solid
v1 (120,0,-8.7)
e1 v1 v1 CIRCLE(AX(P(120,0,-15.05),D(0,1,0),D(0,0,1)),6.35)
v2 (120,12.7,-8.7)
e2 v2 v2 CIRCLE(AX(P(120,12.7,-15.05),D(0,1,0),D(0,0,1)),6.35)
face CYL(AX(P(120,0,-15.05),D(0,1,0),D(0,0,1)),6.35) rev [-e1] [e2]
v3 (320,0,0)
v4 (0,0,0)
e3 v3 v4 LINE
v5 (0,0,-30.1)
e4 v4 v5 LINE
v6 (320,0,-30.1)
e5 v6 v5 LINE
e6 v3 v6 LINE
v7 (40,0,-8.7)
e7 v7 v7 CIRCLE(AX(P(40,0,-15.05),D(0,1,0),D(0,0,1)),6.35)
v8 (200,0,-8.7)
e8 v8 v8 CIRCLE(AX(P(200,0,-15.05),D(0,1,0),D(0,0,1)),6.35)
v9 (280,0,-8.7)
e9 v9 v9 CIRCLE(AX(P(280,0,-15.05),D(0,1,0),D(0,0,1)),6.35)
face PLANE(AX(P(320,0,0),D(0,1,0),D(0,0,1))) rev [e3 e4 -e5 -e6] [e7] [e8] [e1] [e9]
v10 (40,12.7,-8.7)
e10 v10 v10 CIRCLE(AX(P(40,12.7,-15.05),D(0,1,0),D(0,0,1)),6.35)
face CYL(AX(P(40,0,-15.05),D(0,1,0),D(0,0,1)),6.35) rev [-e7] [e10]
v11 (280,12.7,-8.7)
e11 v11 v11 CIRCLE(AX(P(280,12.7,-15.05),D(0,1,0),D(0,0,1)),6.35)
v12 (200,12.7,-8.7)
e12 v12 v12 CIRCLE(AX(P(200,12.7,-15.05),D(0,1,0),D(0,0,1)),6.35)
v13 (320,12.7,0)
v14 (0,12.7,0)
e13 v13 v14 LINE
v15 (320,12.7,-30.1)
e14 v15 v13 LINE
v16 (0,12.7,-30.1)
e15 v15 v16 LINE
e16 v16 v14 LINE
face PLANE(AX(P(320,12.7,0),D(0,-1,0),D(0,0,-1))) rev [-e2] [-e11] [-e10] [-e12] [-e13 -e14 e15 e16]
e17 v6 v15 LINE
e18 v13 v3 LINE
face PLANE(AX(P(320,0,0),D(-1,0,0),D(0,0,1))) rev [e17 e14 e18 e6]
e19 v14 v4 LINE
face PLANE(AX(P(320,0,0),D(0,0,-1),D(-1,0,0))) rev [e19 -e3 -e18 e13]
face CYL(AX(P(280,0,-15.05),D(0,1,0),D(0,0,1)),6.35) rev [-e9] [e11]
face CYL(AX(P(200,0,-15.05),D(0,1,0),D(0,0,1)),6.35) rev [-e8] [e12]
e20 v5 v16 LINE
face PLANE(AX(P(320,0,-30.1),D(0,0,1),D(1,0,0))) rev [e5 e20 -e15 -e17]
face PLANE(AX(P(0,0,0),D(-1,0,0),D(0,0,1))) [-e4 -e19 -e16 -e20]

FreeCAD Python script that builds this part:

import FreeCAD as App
import Part
import Sketcher

V = App.Vector
Q = App.Units.Quantity

doc = App.newDocument("Part")
params = doc.addObject("Spreadsheet::Sheet", "Params")
for row, (alias, value) in enumerate([
    ("sketch1_width", "12.7 mm"),
    ("sketch1_height", "30.1 mm"),
    ("pad1_length", "320 mm"),
    ("sketch2_diameter", "12.7 mm"),
], start=1):
    params.set(f"A{row}", alias)
    params.set(f"B{row}", "=" + value)
    params.setAlias(f"B{row}", alias)

body = doc.addObject("PartDesign::Body", "Body")

# Sketch on YZ plane
sketch1 = body.newObject("Sketcher::SketchObject", "Sketch")
sketch1.AttachmentSupport = (doc.getObject("YZ_Plane"), [""])
sketch1.MapMode = "FlatFace"
sketch1.addGeometry(Part.LineSegment(V(13, 0, 0), V(0, 0, 0)), False)
sketch1.addGeometry(Part.LineSegment(V(0, 0, 0), V(0, -30, 0)), False)
sketch1.addGeometry(Part.LineSegment(V(0, -30, 0), V(13, -30, 0)), False)
sketch1.addGeometry(Part.LineSegment(V(13, -30, 0), V(13, 0, 0)), False)
sketch1.addConstraint(Sketcher.Constraint("Coincident", 0, 2, 1, 1))
sketch1.addConstraint(Sketcher.Constraint("Coincident", 1, 2, 2, 1))
sketch1.addConstraint(Sketcher.Constraint("Coincident", 2, 2, 3, 1))
sketch1.addConstraint(Sketcher.Constraint("Coincident", 3, 2, 0, 1))
sketch1.addConstraint(Sketcher.Constraint("Horizontal", 0))
sketch1.addConstraint(Sketcher.Constraint("Vertical", 1))
sketch1.addConstraint(Sketcher.Constraint("Horizontal", 2))
sketch1.addConstraint(Sketcher.Constraint("Vertical", 3))
sketch1.addConstraint(Sketcher.Constraint("Coincident", 0, 2, -1, 1))
sketch1.addConstraint(Sketcher.Constraint("DistanceX", 0, 2, 0, 1, Q("12.7 mm")))
sketch1.addConstraint(Sketcher.Constraint("DistanceY", 1, 2, 1, 1, Q("30.1 mm")))
sketch1.setExpression("Constraints[9]", "Params.sketch1_width")
sketch1.setExpression("Constraints[10]", "Params.sketch1_height")
pad1 = body.newObject("PartDesign::Pad", "Pad")
pad1.Profile = sketch1
pad1.setExpression("Length", "Params.pad1_length")

# Sketch on XZ plane
sketch2 = body.newObject("Sketcher::SketchObject", "Sketch001")
sketch2.AttachmentSupport = (doc.getObject("XZ_Plane"), [""])
sketch2.MapMode = "FlatFace"
sketch2.AttachmentOffset = App.Placement(V(0, 0, -12.7), App.Rotation())
sketch2.addGeometry(Part.Circle(V(120, -15, 0), V(0, 0, 1), 6), False)
sketch2.addGeometry(Part.Circle(V(200, -15, 0), V(0, 0, 1), 6), False)
sketch2.addGeometry(Part.Circle(V(280, -15, 0), V(0, 0, 1), 6), False)
sketch2.addGeometry(Part.Circle(V(40, -15, 0), V(0, 0, 1), 6), False)
sketch2.addConstraint(Sketcher.Constraint("Equal", 0, 1))
sketch2.addConstraint(Sketcher.Constraint("Equal", 1, 2))
sketch2.addConstraint(Sketcher.Constraint("Equal", 2, 3))
sketch2.addConstraint(Sketcher.Constraint("Horizontal", 0, 3, 1, 3))
sketch2.addConstraint(Sketcher.Constraint("Horizontal", 1, 3, 2, 3))
sketch2.addConstraint(Sketcher.Constraint("Horizontal", 2, 3, 3, 3))
sketch2.addConstraint(Sketcher.Constraint("Diameter", 0, Q("12.7 mm")))
sketch2.addConstraint(Sketcher.Constraint("DistanceX", -1, 1, 0, 3, Q("120 mm")))
sketch2.addConstraint(Sketcher.Constraint("DistanceX", -1, 1, 1, 3, Q("200 mm")))
sketch2.addConstraint(Sketcher.Constraint("DistanceX", -1, 1, 2, 3, Q("280 mm")))
sketch2.addConstraint(Sketcher.Constraint("DistanceX", -1, 1, 3, 3, Q("40 mm")))
sketch2.addConstraint(Sketcher.Constraint("DistanceY", 0, 3, -1, 1, Q("15.05 mm")))
sketch2.setExpression("Constraints[6]", "Params.sketch2_diameter")
pocket1 = body.newObject("PartDesign::Pocket", "Pocket")
pocket1.Profile = sketch2
pocket1.Type = "ThroughAll"
pocket1.Reversed = True

doc.recompute()
